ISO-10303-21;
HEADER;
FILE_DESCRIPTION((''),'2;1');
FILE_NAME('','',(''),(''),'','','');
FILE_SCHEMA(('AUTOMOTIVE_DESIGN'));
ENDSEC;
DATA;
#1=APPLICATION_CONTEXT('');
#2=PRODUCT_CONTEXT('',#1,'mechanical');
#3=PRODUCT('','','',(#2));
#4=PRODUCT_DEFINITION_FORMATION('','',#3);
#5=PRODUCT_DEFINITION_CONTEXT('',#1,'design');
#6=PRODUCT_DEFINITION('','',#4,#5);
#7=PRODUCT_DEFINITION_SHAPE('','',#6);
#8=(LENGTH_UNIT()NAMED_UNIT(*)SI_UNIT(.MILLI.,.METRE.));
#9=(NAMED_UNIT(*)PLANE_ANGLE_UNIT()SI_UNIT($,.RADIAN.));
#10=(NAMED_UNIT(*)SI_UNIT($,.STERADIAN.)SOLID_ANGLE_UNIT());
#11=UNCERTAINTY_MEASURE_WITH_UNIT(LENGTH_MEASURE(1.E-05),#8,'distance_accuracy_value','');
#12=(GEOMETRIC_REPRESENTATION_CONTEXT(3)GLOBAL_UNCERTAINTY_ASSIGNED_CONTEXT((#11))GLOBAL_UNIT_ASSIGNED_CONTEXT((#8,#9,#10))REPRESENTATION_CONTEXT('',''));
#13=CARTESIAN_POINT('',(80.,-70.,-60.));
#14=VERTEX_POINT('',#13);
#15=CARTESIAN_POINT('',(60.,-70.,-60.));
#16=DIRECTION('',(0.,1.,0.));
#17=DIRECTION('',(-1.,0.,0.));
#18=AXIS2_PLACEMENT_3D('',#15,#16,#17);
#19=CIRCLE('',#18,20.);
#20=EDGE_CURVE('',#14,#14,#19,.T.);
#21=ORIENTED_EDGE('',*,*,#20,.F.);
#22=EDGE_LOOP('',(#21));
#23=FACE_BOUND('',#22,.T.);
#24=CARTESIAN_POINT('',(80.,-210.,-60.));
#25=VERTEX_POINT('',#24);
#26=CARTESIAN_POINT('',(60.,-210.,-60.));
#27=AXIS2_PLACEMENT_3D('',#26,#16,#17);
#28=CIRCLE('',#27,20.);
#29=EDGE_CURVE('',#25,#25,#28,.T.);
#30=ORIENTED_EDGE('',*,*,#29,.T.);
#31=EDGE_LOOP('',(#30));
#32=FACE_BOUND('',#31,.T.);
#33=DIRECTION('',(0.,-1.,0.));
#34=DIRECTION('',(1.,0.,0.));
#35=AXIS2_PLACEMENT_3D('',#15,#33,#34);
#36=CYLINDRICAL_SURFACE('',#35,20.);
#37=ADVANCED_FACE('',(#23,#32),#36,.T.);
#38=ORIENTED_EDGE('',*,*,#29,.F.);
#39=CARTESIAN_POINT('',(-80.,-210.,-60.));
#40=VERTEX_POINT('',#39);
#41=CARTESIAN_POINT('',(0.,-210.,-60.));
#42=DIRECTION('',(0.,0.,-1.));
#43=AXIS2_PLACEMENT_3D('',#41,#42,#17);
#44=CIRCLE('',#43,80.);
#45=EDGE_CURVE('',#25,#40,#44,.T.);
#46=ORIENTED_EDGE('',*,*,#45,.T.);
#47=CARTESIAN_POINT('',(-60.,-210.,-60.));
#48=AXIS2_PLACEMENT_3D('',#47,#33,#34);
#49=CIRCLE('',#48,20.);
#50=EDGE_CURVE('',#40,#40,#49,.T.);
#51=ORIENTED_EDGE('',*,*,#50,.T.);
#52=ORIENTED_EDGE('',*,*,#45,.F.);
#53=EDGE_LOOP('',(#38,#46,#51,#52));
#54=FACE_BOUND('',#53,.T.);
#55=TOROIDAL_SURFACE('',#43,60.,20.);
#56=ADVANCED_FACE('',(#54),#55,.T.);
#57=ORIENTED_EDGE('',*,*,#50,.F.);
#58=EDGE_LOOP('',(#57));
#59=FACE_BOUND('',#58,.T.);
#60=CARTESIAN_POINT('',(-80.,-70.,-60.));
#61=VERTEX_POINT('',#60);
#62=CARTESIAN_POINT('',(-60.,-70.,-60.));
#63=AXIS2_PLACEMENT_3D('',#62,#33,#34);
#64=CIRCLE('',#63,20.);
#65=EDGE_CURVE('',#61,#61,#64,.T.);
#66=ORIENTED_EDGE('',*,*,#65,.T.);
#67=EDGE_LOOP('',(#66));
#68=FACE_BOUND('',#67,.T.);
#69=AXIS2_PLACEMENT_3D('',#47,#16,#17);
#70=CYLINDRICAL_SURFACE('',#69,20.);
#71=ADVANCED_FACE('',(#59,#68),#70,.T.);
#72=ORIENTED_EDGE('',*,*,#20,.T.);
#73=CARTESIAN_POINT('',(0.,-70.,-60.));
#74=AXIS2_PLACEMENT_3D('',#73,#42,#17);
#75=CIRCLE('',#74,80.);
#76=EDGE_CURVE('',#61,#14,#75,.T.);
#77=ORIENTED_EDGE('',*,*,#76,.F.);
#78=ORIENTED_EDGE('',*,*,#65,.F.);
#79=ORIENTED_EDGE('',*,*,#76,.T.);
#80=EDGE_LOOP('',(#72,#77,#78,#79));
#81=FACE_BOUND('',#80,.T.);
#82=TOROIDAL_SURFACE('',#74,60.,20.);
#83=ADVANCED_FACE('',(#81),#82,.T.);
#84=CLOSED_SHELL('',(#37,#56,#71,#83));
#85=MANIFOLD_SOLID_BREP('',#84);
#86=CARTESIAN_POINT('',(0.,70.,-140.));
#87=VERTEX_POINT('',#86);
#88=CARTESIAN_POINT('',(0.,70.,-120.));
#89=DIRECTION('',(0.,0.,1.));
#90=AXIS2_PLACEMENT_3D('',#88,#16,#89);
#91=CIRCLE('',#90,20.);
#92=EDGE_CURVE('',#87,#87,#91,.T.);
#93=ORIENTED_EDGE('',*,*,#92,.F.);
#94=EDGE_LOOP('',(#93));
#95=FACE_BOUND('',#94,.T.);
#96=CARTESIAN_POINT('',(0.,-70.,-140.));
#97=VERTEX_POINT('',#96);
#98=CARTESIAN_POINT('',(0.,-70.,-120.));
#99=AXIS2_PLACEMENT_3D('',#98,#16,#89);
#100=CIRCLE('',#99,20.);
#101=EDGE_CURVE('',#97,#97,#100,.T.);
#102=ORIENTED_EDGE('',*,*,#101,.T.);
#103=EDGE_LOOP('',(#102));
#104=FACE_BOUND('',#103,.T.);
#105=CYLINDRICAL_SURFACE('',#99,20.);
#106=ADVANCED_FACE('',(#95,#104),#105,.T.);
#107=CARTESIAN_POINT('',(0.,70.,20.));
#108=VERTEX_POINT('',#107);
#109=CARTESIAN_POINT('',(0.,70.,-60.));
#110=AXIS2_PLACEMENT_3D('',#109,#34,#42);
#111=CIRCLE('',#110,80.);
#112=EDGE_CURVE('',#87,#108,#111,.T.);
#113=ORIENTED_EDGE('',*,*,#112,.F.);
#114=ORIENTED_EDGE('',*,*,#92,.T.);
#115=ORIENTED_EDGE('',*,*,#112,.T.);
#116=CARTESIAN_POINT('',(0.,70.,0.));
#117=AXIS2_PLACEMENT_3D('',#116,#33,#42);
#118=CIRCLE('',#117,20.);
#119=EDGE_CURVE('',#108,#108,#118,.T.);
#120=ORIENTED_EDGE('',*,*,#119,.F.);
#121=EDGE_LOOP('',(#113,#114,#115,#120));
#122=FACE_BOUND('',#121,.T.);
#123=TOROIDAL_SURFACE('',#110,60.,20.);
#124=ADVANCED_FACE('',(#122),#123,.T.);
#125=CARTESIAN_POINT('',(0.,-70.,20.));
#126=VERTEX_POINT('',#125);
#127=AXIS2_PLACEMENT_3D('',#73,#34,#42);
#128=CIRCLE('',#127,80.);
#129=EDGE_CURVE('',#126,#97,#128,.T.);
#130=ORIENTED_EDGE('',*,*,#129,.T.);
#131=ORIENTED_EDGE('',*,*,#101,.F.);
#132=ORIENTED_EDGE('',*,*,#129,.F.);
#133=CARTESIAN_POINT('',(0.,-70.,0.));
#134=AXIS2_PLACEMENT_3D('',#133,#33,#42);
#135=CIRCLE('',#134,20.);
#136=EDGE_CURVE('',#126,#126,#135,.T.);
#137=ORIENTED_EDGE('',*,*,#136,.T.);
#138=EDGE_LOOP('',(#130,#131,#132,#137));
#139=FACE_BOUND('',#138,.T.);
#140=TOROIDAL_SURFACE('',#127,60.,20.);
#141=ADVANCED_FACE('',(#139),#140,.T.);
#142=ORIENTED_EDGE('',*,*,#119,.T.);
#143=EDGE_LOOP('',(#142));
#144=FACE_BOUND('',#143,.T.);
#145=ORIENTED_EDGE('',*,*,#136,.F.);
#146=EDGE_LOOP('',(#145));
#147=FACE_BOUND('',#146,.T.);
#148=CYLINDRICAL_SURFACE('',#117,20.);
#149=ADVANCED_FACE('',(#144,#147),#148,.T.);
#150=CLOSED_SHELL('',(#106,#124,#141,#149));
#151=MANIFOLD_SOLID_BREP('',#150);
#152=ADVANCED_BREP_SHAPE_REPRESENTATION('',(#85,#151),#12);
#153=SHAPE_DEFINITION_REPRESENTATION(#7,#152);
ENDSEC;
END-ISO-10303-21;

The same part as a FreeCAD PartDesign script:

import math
import FreeCAD as App
import Part
import Sketcher
from FreeCAD import Vector

doc = App.newDocument("Part")
body = doc.addObject("PartDesign::Body", "Body")

sketch1 = body.newObject("Sketcher::SketchObject", "Sketch")
sketch1.AttachmentSupport = (doc.getObject("XZ_Plane"), [""])
sketch1.MapMode = "FlatFace"
sketch1.AttachmentOffset = App.Placement(Vector(0, 0, -70), App.Rotation())
sketch1.addGeometry(Part.Circle(Vector(0, 0, 0), Vector(0, 0, 1), 20), False)
sketch1.addConstraint(Sketcher.Constraint("Coincident", 0, 3, -1, 1))
sketch1.addConstraint(Sketcher.Constraint("Diameter", 0, 40.0))

sketch2 = body.newObject("Sketcher::SketchObject", "Sketch001")
sketch2.AttachmentSupport = (doc.getObject("YZ_Plane"), [""])
sketch2.MapMode = "FlatFace"
sketch2.addGeometry(Part.LineSegment(Vector(70, 0, 0), Vector(-70, 0, 0)), False)
sketch2.addGeometry(Part.ArcOfCircle(Part.Circle(Vector(-70, -60, 0), Vector(0, 0, 1), 60), math.radians(90), math.radians(270)), False)
sketch2.addGeometry(Part.LineSegment(Vector(-70, -120, 0), Vector(70, -120, 0)), False)
sketch2.addGeometry(Part.ArcOfCircle(Part.Circle(Vector(70, -60, 0), Vector(0, 0, 1), 60), math.radians(-90), math.radians(90)), False)
sketch2.addConstraint(Sketcher.Constraint("Tangent", 0, 2, 1, 1))
sketch2.addConstraint(Sketcher.Constraint("Tangent", 1, 2, 2, 1))
sketch2.addConstraint(Sketcher.Constraint("Tangent", 2, 2, 3, 1))
sketch2.addConstraint(Sketcher.Constraint("Tangent", 3, 2, 0, 1))
sketch2.addConstraint(Sketcher.Constraint("Horizontal", 0))
sketch2.addConstraint(Sketcher.Constraint("Horizontal", 2))
sketch2.addConstraint(Sketcher.Constraint("Symmetric", 0, 2, 3, 2, -1, 1))
sketch2.addConstraint(Sketcher.Constraint("Radius", 1, 60.0))
sketch2.addConstraint(Sketcher.Constraint("DistanceX", 0, 2, 0, 1, 140.0))
doc.recompute()

additivepipe = body.newObject("PartDesign::AdditivePipe", "AdditivePipe")
additivepipe.Profile = sketch1
additivepipe.Spine = (sketch2, ["Edge1", "Edge2", "Edge3", "Edge4"])
body2 = doc.addObject("PartDesign::Body", "Body001")

sketch3 = body2.newObject("Sketcher::SketchObject", "Sketch002")
sketch3.AttachmentSupport = (doc.getObject("XZ_Plane001"), [""])
sketch3.MapMode = "FlatFace"
sketch3.AttachmentOffset = App.Placement(Vector(0, 0, 70), App.Rotation())
sketch3.addGeometry(Part.Circle(Vector(60, -60, 0), Vector(0, 0, 1), 20), False)
sketch3.addConstraint(Sketcher.Constraint("Diameter", 0, 40.0))
sketch3.addConstraint(Sketcher.Constraint("DistanceX", -1, 1, 0, 3, 60.0))
sketch3.addConstraint(Sketcher.Constraint("DistanceY", 0, 3, -1, 1, 60.0))

sketch4 = body2.newObject("Sketcher::SketchObject", "Sketch003")
sketch4.AttachmentSupport = (doc.getObject("XY_Plane001"), [""])
sketch4.MapMode = "FlatFace"
sketch4.AttachmentOffset = App.Placement(Vector(0, 0, -60), App.Rotation())
sketch4.addGeometry(Part.LineSegment(Vector(60, -70, 0), Vector(60, -210, 0)), False)
sketch4.addGeometry(Part.ArcOfCircle(Part.Circle(Vector(0, -210, 0), Vector(0, 0, 1), 60), math.radians(180), math.radians(360)), False)
sketch4.addGeometry(Part.LineSegment(Vector(-60, -210, 0), Vector(-60, -70, 0)), False)
sketch4.addGeometry(Part.ArcOfCircle(Part.Circle(Vector(0, -70, 0), Vector(0, 0, 1), 60), math.radians(0), math.radians(180)), False)
sketch4.addConstraint(Sketcher.Constraint("Tangent", 0, 2, 1, 2))
sketch4.addConstraint(Sketcher.Constraint("Tangent", 1, 1, 2, 1))
sketch4.addConstraint(Sketcher.Constraint("Tangent", 2, 2, 3, 2))
sketch4.addConstraint(Sketcher.Constraint("Tangent", 3, 1, 0, 1))
sketch4.addConstraint(Sketcher.Constraint("Vertical", 0))
sketch4.addConstraint(Sketcher.Constraint("Vertical", 2))
sketch4.addConstraint(Sketcher.Constraint("PointOnObject", 1, 3, -2))
sketch4.addConstraint(Sketcher.Constraint("Radius", 1, 60.0))
sketch4.addConstraint(Sketcher.Constraint("DistanceY", 0, 2, 0, 1, 140.0))
sketch4.addConstraint(Sketcher.Constraint("DistanceY", 1, 3, -1, 1, 210.0))
doc.recompute()

additivepipe2 = body2.newObject("PartDesign::AdditivePipe", "AdditivePipe001")
additivepipe2.Profile = sketch3
additivepipe2.Spine = (sketch4, ["Edge1", "Edge2", "Edge3", "Edge4"])

doc.recompute()
